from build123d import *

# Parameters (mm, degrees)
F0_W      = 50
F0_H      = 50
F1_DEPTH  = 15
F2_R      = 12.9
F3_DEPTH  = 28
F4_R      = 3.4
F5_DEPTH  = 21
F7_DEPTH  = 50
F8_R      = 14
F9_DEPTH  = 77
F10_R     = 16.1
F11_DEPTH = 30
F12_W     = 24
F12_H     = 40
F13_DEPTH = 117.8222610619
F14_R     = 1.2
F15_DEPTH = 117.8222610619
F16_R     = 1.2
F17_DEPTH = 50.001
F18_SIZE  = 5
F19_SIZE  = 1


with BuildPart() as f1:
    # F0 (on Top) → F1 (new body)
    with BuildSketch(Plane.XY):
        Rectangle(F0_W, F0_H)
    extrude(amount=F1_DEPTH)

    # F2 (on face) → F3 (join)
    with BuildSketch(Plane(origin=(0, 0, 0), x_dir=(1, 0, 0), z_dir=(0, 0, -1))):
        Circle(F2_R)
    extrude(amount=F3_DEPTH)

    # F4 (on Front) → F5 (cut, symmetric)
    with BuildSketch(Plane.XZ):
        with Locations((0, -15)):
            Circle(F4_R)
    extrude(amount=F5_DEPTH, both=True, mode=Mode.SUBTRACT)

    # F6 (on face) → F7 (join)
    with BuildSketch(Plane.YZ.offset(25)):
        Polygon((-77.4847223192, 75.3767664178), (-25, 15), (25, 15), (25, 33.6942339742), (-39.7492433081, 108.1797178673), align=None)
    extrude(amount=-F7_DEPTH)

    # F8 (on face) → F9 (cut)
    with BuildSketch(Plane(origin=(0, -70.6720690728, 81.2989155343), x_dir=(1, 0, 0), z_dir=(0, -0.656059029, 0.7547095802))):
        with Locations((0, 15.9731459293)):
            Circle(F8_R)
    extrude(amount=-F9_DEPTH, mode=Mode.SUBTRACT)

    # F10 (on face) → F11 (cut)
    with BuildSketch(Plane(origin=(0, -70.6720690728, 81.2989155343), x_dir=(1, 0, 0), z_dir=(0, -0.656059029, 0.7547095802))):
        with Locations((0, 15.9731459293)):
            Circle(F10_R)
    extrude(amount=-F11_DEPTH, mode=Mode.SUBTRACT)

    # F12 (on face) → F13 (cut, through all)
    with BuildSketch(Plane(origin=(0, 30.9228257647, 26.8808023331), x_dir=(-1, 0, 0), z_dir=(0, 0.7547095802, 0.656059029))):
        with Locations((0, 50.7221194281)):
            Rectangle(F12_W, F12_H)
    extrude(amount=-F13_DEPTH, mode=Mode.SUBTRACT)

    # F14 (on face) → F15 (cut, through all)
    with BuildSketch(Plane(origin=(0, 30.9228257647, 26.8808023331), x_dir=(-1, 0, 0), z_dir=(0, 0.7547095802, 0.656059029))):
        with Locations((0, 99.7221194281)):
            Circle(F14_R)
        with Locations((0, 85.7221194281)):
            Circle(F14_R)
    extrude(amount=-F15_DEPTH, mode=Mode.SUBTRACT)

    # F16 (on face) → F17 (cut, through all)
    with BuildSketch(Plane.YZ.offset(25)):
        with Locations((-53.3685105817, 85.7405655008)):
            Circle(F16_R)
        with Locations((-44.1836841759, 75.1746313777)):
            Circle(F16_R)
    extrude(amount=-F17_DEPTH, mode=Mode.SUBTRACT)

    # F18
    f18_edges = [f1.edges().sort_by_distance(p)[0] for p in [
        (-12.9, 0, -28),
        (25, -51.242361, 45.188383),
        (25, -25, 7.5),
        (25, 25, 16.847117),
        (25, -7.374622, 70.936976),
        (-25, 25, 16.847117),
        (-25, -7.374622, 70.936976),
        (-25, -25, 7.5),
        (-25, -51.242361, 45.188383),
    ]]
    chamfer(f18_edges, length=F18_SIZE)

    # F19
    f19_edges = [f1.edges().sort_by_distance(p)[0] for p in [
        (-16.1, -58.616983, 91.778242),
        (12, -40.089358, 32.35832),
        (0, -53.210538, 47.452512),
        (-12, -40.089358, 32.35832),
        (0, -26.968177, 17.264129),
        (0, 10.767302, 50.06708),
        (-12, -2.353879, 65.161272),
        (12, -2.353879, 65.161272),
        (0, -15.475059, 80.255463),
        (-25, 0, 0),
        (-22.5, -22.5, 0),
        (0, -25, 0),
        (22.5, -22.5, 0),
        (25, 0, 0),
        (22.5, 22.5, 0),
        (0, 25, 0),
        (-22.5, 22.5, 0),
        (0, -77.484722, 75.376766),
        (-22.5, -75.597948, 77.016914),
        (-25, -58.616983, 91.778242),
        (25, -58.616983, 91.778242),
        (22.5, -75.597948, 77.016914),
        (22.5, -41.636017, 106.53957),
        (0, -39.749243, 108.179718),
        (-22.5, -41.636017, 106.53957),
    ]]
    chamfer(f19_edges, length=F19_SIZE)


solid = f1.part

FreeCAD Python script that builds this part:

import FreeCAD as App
import Part
import Sketcher

V = App.Vector
Q = App.Units.Quantity


def edges_at(feature, points):
    """Names of the edges that pass closest to the given points."""
    edges = feature.Shape.Edges
    near = lambda p: min(range(len(edges)), key=lambda i: edges[i].distToShape(Part.Vertex(*p))[0])
    return sorted({f"Edge{near(p) + 1}" for p in points})


def add_polygon(sketch, points):
    """Adds a closed chain of lines whose ends are joined by coincident constraints."""
    first, n = sketch.GeometryCount, len(points)
    for a, b in zip(points, points[1:] + points[:1]):
        sketch.addGeometry(Part.LineSegment(App.Vector(*a, 0), App.Vector(*b, 0)), False)
    for i in range(n):
        sketch.addConstraint(Sketcher.Constraint("Coincident", first + i, 2, first + (i + 1) % n, 1))

doc = App.newDocument("Part")
body = doc.addObject("PartDesign::Body", "Body")

sketch1 = body.newObject("Sketcher::SketchObject", "Sketch")
sketch1.AttachmentSupport = (doc.getObject("XY_Plane"), [""])
sketch1.MapMode = "FlatFace"
add_polygon(sketch1, [(-25, 25), (-25, -25), (25, -25), (25, 25)])
sketch1.addConstraint([
    Sketcher.Constraint("Vertical", 0),
    Sketcher.Constraint("Horizontal", 1),
    Sketcher.Constraint("Vertical", 2),
    Sketcher.Constraint("Horizontal", 3),
    Sketcher.Constraint("Symmetric", 0, 2, 2, 2, -1, 1),
    Sketcher.Constraint("Equal", 3, 0),
    Sketcher.Constraint("DistanceX", 1, 1, 1, 2, 50.0),
])
pad1 = body.newObject("PartDesign::Pad", "Pad")
pad1.Profile = sketch1
pad1.Length = 15

sketch2 = body.newObject("Sketcher::SketchObject", "Sketch001")
sketch2.AttachmentSupport = (doc.getObject("XY_Plane"), [""])
sketch2.MapMode = "FlatFace"
sketch2.addGeometry(Part.Circle(V(0, 0, 0), V(0, 0, 1), 12.9), False)
sketch2.addConstraint([
    Sketcher.Constraint("Coincident", 0, 3, -1, 1),
    Sketcher.Constraint("Diameter", 0, 25.8),
])
pad2 = body.newObject("PartDesign::Pad", "Pad001")
pad2.Profile = sketch2
pad2.Length = 28
pad2.Reversed = True

sketch3 = body.newObject("Sketcher::SketchObject", "Sketch002")
sketch3.AttachmentSupport = (doc.getObject("XZ_Plane"), [""])
sketch3.MapMode = "FlatFace"
sketch3.addGeometry(Part.Circle(V(0, -15, 0), V(0, 0, 1), 3.4), False)
sketch3.addConstraint([
    Sketcher.Constraint("PointOnObject", 0, 3, -2),
    Sketcher.Constraint("Diameter", 0, 6.8),
    Sketcher.Constraint("DistanceY", 0, 3, -1, 1, 15.0),
])
pocket1 = body.newObject("PartDesign::Pocket", "Pocket")
pocket1.Profile = sketch3
pocket1.Length = 42
pocket1.Midplane = True

sketch4 = body.newObject("Sketcher::SketchObject", "Sketch003")
sketch4.AttachmentSupport = (doc.getObject("YZ_Plane"), [""])
sketch4.MapMode = "FlatFace"
sketch4.AttachmentOffset = App.Placement(V(0, 0, 25), App.Rotation())
add_polygon(sketch4, [(-77.484722, 75.376766), (-25, 15), (25, 15), (25, 33.694234), (-39.749243, 108.179718)])
sketch4.addConstraint([
    Sketcher.Constraint("Horizontal", 1),
    Sketcher.Constraint("Vertical", 2),
    Sketcher.Constraint("Parallel", 0, 3),
    Sketcher.Constraint("Perpendicular", 3, 4),
    Sketcher.Constraint("DistanceX", 1, 1, 1, 2, 50.0),
    Sketcher.Constraint("Angle", 0, Q("-49 deg")),
    Sketcher.Constraint("Distance", 0, 80.0),
    Sketcher.Constraint("Distance", 4, 50.0),
    Sketcher.Constraint("DistanceX", 0, 2, -1, 1, 25.0),
    Sketcher.Constraint("DistanceY", -1, 1, 0, 2, 15.0),
])
pad3 = body.newObject("PartDesign::Pad", "Pad002")
pad3.Profile = sketch4
pad3.Length = 50
pad3.Reversed = True

sketch5 = body.newObject("Sketcher::SketchObject", "Sketch004")
sketch5.Placement = App.Placement(V(0, -70.672069, 81.298916), App.Rotation(V(1, 0, 0), V(0, 0.75470958, 0.656059029), V(0, -0.656059029, 0.75470958), "ZXY"))
sketch5.addGeometry(Part.Circle(V(0, 15.973146, 0), V(0, 0, 1), 14), False)
sketch5.addConstraint([
    Sketcher.Constraint("PointOnObject", 0, 3, -2),
    Sketcher.Constraint("Diameter", 0, 28.0),
    Sketcher.Constraint("DistanceY", -1, 1, 0, 3, 15.973146),
])
pocket2 = body.newObject("PartDesign::Pocket", "Pocket001")
pocket2.Profile = sketch5
pocket2.Length = 77

sketch6 = body.newObject("Sketcher::SketchObject", "Sketch005")
sketch6.Placement = App.Placement(V(0, -70.672069, 81.298916), App.Rotation(V(1, 0, 0), V(0, 0.75470958, 0.656059029), V(0, -0.656059029, 0.75470958), "ZXY"))
sketch6.addGeometry(Part.Circle(V(0, 15.973146, 0), V(0, 0, 1), 16.1), False)
sketch6.addConstraint([
    Sketcher.Constraint("PointOnObject", 0, 3, -2),
    Sketcher.Constraint("Diameter", 0, 32.2),
    Sketcher.Constraint("DistanceY", -1, 1, 0, 3, 15.973146),
])
pocket3 = body.newObject("PartDesign::Pocket", "Pocket002")
pocket3.Profile = sketch6
pocket3.Length = 30

sketch7 = body.newObject("Sketcher::SketchObject", "Sketch006")
sketch7.Placement = App.Placement(V(0, 30.922826, 26.880802), App.Rotation(V(-1, 0, 0), V(0, -0.656059029, 0.75470958), V(0, 0.75470958, 0.656059029), "ZXY"))
add_polygon(sketch7, [(-12, 70.722119), (-12, 30.722119), (12, 30.722119), (12, 70.722119)])
sketch7.addConstraint([
    Sketcher.Constraint("Vertical", 0),
    Sketcher.Constraint("Horizontal", 1),
    Sketcher.Constraint("Vertical", 2),
    Sketcher.Constraint("Horizontal", 3),
    Sketcher.Constraint("DistanceX", 1, 1, 1, 2, 24.0),
    Sketcher.Constraint("DistanceY", 0, 2, 0, 1, 40.0),
    Sketcher.Constraint("DistanceX", 0, 2, -1, 1, 12.0),
    Sketcher.Constraint("DistanceY", -1, 1, 0, 2, 30.722119),
])
pocket4 = body.newObject("PartDesign::Pocket", "Pocket003")
pocket4.Profile = sketch7
pocket4.Type = "ThroughAll"

sketch8 = body.newObject("Sketcher::SketchObject", "Sketch007")
sketch8.Placement = App.Placement(V(0, 30.922826, 26.880802), App.Rotation(V(-1, 0, 0), V(0, -0.656059029, 0.75470958), V(0, 0.75470958, 0.656059029), "ZXY"))
sketch8.addGeometry([
    Part.Circle(V(0, 99.722119, 0), V(0, 0, 1), 1.2),
    Part.Circle(V(0, 85.722119, 0), V(0, 0, 1), 1.2),
], False)
sketch8.addConstraint([
    Sketcher.Constraint("Equal", 0, 1),
    Sketcher.Constraint("PointOnObject", 0, 3, -2),
    Sketcher.Constraint("PointOnObject", 1, 3, -2),
    Sketcher.Constraint("Diameter", 0, 2.4),
    Sketcher.Constraint("DistanceY", 1, 3, 0, 3, 14.0),
    Sketcher.Constraint("DistanceY", -1, 1, 0, 3, 99.722119),
])
pocket5 = body.newObject("PartDesign::Pocket", "Pocket004")
pocket5.Profile = sketch8
pocket5.Type = "ThroughAll"

sketch9 = body.newObject("Sketcher::SketchObject", "Sketch008")
sketch9.AttachmentSupport = (doc.getObject("YZ_Plane"), [""])
sketch9.MapMode = "FlatFace"
sketch9.AttachmentOffset = App.Placement(V(0, 0, 25), App.Rotation())
sketch9.addGeometry([
    Part.Circle(V(-53.368511, 85.740566, 0), V(0, 0, 1), 1.2),
    Part.Circle(V(-44.183684, 75.174631, 0), V(0, 0, 1), 1.2),
], False)
sketch9.addConstraint([
    Sketcher.Constraint("Equal", 0, 1),
    Sketcher.Constraint("Diameter", 0, 2.4),
    Sketcher.Constraint("DistanceX", 0, 3, -1, 1, 53.368511),
    Sketcher.Constraint("DistanceY", -1, 1, 1, 3, 75.174631),
    Sketcher.Constraint("DistanceY", -1, 1, 0, 3, 85.740566),
    Sketcher.Constraint("DistanceX", 1, 3, -1, 1, 44.183684),
])
pocket6 = body.newObject("PartDesign::Pocket", "Pocket005")
pocket6.Profile = sketch9
pocket6.Type = "ThroughAll"
doc.recompute()

chamfer = body.newObject("PartDesign::Chamfer", "Chamfer")
chamfer.Base = (pocket6, edges_at(pocket6, [
    (-12.9, 0, -28),
    (25, -51.242, 45.188),
    (25, -25, 7.5),
    (25, 25, 16.847),
    (25, -7.375, 70.937),
    (-25, 25, 16.847),
    (-25, -7.375, 70.937),
    (-25, -25, 7.5),
    (-25, -51.242, 45.188),
]))
chamfer.Size = 5
doc.recompute()

chamfer2 = body.newObject("PartDesign::Chamfer", "Chamfer001")
chamfer2.Base = (chamfer, edges_at(chamfer, [
    (-16.1, -58.617, 91.778),
    (12, -40.089, 32.358),
    (0, -53.211, 47.453),
    (-12, -40.089, 32.358),
    (0, -26.968, 17.264),
    (0, 10.767, 50.067),
    (-12, -2.354, 65.161),
    (12, -2.354, 65.161),
    (0, -15.475, 80.255),
    (-25, 0, 0),
    (-22.5, -22.5, 0),
    (0, -25, 0),
    (22.5, -22.5, 0),
    (25, 0, 0),
    (22.5, 22.5, 0),
    (0, 25, 0),
    (-22.5, 22.5, 0),
    (0, -77.485, 75.377),
    (-22.5, -75.598, 77.017),
    (-25, -58.617, 91.778),
    (25, -58.617, 91.778),
    (22.5, -75.598, 77.017),
    (22.5, -41.636, 106.54),
    (0, -39.749, 108.18),
    (-22.5, -41.636, 106.54),
]))
chamfer2.Size = 1

doc.recompute()
